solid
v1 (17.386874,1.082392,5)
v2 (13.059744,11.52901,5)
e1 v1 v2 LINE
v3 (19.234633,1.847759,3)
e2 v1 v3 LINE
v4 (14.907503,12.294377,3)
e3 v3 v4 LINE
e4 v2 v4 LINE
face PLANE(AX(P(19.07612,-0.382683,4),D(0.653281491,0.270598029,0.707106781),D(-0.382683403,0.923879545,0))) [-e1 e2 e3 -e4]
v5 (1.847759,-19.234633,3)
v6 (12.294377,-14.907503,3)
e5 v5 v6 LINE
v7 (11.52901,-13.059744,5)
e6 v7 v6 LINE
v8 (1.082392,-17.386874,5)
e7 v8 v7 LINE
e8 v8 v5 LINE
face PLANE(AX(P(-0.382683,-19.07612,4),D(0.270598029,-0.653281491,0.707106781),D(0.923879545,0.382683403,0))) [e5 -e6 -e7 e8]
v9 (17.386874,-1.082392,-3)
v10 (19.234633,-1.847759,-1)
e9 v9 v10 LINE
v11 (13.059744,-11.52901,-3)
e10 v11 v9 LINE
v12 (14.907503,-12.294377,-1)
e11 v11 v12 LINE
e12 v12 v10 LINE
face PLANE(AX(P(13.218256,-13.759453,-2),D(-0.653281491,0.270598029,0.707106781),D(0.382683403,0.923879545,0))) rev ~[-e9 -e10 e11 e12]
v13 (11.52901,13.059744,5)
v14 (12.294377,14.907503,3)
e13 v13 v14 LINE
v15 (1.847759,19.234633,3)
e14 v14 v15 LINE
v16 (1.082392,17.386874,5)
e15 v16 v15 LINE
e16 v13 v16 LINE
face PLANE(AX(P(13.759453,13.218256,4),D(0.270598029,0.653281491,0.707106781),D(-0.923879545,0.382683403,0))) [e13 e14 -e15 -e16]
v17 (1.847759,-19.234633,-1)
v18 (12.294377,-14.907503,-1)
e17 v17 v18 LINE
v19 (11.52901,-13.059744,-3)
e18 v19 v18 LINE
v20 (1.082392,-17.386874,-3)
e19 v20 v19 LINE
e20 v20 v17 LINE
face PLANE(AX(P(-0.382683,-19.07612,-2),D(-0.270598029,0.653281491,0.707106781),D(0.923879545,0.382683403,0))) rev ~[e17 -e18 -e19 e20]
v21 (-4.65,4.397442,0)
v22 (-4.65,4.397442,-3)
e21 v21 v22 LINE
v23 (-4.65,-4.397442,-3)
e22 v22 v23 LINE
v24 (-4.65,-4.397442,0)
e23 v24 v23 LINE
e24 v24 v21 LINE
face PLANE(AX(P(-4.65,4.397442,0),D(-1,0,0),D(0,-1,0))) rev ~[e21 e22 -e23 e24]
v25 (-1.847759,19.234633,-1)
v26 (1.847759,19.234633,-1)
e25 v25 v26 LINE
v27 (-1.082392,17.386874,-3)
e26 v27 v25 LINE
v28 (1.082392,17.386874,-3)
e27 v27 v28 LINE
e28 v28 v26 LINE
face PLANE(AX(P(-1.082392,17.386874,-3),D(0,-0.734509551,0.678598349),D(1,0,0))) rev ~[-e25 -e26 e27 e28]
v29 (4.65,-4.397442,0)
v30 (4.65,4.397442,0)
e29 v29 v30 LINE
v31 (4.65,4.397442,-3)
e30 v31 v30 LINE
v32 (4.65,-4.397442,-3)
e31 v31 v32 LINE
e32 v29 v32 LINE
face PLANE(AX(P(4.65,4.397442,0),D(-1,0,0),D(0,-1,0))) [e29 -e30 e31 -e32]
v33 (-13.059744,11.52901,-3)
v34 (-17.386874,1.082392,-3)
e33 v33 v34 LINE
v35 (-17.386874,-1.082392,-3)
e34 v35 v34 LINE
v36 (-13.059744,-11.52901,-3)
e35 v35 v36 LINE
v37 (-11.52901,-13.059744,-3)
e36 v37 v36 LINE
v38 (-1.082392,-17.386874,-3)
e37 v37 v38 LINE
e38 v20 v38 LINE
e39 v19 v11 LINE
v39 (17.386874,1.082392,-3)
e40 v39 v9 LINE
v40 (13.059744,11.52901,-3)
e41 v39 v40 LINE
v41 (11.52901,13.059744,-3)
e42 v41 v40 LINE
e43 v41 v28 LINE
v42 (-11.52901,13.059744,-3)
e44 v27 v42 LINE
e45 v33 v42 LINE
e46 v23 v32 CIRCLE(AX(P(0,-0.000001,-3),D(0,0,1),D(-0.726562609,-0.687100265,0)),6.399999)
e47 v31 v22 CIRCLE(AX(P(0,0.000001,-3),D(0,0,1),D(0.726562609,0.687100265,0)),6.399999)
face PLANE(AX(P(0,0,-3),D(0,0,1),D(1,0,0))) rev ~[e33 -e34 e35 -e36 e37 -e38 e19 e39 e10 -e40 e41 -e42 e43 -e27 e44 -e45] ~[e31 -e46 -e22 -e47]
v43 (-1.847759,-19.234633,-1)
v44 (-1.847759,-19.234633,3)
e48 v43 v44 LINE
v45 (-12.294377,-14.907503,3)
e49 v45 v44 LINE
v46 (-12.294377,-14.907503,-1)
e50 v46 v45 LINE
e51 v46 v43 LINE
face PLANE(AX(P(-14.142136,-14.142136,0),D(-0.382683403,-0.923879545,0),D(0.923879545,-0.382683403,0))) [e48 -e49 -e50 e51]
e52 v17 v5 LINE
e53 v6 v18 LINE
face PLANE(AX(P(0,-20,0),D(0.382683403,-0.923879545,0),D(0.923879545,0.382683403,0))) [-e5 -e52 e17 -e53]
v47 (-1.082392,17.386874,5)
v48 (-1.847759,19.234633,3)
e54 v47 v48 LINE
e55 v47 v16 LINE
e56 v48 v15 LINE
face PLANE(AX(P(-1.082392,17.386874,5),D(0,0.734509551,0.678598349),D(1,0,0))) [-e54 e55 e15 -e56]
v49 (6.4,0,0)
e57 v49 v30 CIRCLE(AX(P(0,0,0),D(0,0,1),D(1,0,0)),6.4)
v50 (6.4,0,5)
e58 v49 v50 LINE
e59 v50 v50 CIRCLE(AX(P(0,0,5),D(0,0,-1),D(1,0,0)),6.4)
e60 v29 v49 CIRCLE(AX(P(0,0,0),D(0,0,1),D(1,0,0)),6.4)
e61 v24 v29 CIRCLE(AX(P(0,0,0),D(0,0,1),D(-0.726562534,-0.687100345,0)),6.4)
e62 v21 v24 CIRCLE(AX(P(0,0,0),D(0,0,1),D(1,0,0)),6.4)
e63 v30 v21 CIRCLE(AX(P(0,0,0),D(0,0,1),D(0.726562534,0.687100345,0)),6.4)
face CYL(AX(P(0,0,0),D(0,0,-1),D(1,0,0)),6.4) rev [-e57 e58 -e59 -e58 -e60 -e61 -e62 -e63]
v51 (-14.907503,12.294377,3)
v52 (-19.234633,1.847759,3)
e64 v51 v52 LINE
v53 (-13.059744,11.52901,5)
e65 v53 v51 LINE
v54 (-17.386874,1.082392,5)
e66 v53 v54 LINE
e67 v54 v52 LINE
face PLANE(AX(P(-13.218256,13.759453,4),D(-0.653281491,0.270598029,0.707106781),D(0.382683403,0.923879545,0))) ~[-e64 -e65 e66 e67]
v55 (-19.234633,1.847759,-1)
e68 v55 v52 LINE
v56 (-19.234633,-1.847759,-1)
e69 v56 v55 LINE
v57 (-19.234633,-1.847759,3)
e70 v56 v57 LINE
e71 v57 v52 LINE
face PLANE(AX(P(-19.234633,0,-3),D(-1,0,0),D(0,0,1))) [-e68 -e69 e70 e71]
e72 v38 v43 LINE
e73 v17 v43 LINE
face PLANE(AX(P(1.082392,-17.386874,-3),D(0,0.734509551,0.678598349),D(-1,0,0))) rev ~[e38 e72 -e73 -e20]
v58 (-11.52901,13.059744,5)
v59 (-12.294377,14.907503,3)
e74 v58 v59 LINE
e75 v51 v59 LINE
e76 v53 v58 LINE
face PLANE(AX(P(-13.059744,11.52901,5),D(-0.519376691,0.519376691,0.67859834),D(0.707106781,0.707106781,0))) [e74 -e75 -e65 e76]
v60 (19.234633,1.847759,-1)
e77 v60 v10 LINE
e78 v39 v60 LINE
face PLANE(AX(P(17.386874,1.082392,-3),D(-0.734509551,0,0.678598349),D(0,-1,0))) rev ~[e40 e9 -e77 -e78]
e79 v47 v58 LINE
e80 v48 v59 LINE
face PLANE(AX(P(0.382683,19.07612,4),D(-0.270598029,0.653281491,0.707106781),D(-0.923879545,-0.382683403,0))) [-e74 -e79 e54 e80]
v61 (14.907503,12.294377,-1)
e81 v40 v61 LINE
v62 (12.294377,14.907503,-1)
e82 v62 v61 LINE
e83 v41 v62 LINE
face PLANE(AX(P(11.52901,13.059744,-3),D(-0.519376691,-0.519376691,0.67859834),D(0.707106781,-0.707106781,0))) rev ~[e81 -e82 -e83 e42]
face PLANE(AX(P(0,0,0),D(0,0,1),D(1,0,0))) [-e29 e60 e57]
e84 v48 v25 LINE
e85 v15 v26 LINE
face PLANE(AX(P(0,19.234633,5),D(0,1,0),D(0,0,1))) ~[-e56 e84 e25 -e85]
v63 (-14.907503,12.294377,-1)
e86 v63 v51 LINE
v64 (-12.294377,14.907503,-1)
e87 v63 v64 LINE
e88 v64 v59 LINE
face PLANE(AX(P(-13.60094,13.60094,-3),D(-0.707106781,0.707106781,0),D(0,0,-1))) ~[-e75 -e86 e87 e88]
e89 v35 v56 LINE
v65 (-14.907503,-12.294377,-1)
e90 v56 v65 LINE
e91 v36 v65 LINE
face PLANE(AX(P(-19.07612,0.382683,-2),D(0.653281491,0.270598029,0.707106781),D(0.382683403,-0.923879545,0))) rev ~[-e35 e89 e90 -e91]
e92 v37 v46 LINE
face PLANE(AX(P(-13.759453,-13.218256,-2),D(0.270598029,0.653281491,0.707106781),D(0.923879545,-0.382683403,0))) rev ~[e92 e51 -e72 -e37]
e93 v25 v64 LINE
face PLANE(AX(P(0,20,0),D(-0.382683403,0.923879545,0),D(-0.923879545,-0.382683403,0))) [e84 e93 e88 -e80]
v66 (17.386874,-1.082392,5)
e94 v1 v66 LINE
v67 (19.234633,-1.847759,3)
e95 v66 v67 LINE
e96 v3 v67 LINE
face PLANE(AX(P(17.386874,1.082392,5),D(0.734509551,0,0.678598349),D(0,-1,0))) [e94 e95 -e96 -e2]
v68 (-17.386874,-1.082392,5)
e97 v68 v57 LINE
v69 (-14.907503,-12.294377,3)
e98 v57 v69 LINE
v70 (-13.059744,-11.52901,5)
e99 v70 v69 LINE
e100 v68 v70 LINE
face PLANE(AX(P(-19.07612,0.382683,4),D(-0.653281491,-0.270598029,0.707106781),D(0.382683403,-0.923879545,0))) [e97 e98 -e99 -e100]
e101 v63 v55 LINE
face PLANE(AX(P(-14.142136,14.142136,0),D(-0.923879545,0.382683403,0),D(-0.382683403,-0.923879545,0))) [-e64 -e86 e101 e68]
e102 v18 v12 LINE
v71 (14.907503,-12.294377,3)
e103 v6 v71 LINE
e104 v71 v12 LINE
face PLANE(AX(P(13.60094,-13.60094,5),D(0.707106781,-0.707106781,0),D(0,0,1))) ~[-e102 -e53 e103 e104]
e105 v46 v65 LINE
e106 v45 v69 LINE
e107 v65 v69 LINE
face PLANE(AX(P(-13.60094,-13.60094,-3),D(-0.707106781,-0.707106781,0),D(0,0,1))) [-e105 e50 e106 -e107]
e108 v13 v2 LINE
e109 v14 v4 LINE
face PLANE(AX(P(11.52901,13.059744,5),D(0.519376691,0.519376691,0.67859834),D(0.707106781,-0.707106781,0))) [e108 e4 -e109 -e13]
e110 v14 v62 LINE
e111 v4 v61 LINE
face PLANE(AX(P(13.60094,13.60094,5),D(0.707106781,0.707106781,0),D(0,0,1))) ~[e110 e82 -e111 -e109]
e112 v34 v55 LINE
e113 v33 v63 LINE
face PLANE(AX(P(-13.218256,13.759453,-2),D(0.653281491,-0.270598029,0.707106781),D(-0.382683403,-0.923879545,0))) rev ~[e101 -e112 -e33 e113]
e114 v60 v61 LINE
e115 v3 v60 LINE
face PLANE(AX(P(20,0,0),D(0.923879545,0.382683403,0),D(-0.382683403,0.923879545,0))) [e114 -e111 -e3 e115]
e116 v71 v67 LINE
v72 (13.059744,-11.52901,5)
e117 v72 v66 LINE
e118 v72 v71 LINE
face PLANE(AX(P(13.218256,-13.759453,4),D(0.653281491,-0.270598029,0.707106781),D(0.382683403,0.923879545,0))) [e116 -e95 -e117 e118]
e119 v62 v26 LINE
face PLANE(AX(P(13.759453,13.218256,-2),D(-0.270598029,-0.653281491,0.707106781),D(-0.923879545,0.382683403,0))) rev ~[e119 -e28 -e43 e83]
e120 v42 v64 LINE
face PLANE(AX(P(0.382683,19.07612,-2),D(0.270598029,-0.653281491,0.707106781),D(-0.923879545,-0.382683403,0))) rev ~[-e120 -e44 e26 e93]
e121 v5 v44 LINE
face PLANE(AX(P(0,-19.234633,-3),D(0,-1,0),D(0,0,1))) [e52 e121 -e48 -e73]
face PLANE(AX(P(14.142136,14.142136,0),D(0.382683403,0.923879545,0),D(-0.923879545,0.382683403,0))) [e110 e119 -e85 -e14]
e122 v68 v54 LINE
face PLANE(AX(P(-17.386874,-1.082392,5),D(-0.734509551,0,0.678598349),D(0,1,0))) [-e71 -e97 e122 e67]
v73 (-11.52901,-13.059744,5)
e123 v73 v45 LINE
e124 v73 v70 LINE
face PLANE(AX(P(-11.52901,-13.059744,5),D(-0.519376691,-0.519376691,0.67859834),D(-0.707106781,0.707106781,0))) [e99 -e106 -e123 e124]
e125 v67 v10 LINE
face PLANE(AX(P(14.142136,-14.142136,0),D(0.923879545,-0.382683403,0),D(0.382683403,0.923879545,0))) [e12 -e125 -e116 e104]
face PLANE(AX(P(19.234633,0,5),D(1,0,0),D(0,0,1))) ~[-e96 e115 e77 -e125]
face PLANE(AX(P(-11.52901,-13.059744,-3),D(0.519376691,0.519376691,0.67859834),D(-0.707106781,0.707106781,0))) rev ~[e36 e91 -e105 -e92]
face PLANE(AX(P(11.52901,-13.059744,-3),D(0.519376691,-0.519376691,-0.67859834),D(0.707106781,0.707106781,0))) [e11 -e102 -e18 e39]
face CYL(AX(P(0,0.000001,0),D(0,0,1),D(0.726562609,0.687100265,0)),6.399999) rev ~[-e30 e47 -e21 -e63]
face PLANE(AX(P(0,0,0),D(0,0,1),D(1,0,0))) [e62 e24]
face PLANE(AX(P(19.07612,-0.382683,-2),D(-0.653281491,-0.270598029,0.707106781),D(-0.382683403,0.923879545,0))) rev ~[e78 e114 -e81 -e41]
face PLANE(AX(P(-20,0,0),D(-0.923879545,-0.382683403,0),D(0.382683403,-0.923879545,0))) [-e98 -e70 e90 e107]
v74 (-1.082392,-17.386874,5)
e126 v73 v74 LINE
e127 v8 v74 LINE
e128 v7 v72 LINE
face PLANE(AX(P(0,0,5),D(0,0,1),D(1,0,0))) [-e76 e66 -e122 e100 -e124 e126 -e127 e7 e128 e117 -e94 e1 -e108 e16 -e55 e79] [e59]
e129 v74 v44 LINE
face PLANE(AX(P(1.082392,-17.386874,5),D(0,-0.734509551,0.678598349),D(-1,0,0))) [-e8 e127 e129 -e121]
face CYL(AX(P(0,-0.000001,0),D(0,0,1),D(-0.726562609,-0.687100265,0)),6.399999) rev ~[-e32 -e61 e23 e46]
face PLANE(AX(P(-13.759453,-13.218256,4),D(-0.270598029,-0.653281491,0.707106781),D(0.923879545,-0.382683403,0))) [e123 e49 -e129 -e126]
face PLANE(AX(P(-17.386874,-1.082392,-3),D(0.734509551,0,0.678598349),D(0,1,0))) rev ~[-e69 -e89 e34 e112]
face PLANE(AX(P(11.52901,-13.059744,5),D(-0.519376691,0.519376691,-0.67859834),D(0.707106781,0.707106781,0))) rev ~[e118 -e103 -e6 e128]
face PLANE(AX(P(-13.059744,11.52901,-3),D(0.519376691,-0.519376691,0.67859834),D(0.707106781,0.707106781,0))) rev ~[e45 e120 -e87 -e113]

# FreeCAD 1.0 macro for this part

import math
import FreeCAD as App
import Part
import Sketcher
Q = App.Units.Quantity


def edges_at(feature, points):
    """Names of the edges that pass closest to the given points."""
    edges = feature.Shape.Edges
    near = lambda p: min(range(len(edges)), key=lambda i: edges[i].distToShape(Part.Vertex(*p))[0])
    return sorted({f"Edge{near(p) + 1}" for p in points})

doc = App.newDocument("Part")
params = doc.addObject("Spreadsheet::Sheet", "Params")
for row, (alias, value) in enumerate([
    ("sketch1_radius", "6.399999 mm"),
    ("pad1_length", "5 mm"),
    ("pad1_length2", "3 mm"),
    ("sketch2_diameter", "12.8 mm"),
    ("chamfer_size", "2 mm"),
], start=1):
    params.set(f"A{row}", alias)
    params.set(f"B{row}", "=" + value)
    params.setAlias(f"B{row}", alias)

body = doc.addObject("PartDesign::Body", "Body")

# Sketch on XY plane
sketch1 = doc.addObject("Sketcher::SketchObject", "Sketch")
body.addObject(sketch1)
sketch1.AttachmentSupport = (doc.XY_Plane, [""])
sketch1.MapMode = "FlatFace"
sketch1.addGeometry([
    Part.LineSegment(App.Vector(0, 20, 0), App.Vector(-14.142136, 14.142136, 0)),  # 0
    Part.LineSegment(App.Vector(-14.142136, 14.142136, 0), App.Vector(-20, 0, 0)),  # 1
    Part.LineSegment(App.Vector(-20, 0, 0), App.Vector(-14.142136, -14.142136, 0)),  # 2
    Part.LineSegment(App.Vector(-14.142136, -14.142136, 0), App.Vector(0, -20, 0)),  # 3
    Part.LineSegment(App.Vector(0, -20, 0), App.Vector(14.142136, -14.142136, 0)),  # 4
    Part.LineSegment(App.Vector(14.142136, -14.142136, 0), App.Vector(20, 0, 0)),  # 5
    Part.LineSegment(App.Vector(20, 0, 0), App.Vector(14.142136, 14.142136, 0)),  # 6
    Part.LineSegment(App.Vector(14.142136, 14.142136, 0), App.Vector(0, 20, 0)),  # 7
    Part.ArcOfCircle(Part.Circle(App.Vector(0, 0.000001, 0), App.Vector(0, 0, 1), 6.399999), math.radians(43.401006), math.radians(136.598994)),  # 8
    Part.LineSegment(App.Vector(4.65, 4.397442, 0), App.Vector(4.65, -4.397442, 0)),  # 9
    Part.ArcOfCircle(Part.Circle(App.Vector(0, -0.000001, 0), App.Vector(0, 0, 1), 6.399999), math.radians(-136.598994), math.radians(-43.401006)),  # 10
    Part.LineSegment(App.Vector(-4.65, -4.397442, 0), App.Vector(-4.65, 4.397442, 0)),  # 11
], False)
sketch1.addConstraint([
    Sketcher.Constraint("Coincident", 0, 2, 1, 1),
    Sketcher.Constraint("Coincident", 1, 2, 2, 1),
    Sketcher.Constraint("Coincident", 2, 2, 3, 1),
    Sketcher.Constraint("Coincident", 3, 2, 4, 1),
    Sketcher.Constraint("Coincident", 4, 2, 5, 1),
    Sketcher.Constraint("Coincident", 5, 2, 6, 1),
    Sketcher.Constraint("Coincident", 6, 2, 7, 1),
    Sketcher.Constraint("Coincident", 7, 2, 0, 1),
    Sketcher.Constraint("Coincident", 8, 1, 9, 1),
    Sketcher.Constraint("Coincident", 9, 2, 10, 2),
    Sketcher.Constraint("Coincident", 10, 1, 11, 1),
    Sketcher.Constraint("Coincident", 11, 2, 8, 2),
    Sketcher.Constraint("Vertical", 9),
    Sketcher.Constraint("Vertical", 11),
    Sketcher.Constraint("Coincident", 8, 3, -1, 1),
    Sketcher.Constraint("Coincident", 10, 3, -1, 1),
    Sketcher.Constraint("Equal", 8, 10),
    Sketcher.Constraint("Symmetric", 0, 2, 4, 2, -1, 1),
    Sketcher.Constraint("Symmetric", 1, 2, 5, 2, -1, 1),
    Sketcher.Constraint("Symmetric", 2, 2, 6, 2, -1, 1),
    Sketcher.Constraint("Symmetric", 3, 2, 7, 2, -1, 1),
    Sketcher.Constraint("Symmetric", 2, 2, 4, 2, -2),
    Sketcher.Constraint("PointOnObject", 1, 2, -1),
    Sketcher.Constraint("PointOnObject", 3, 2, -2),
    Sketcher.Constraint("Perpendicular", 0, 2),
    Sketcher.Constraint("Horizontal", 9, 2, 10, 1),
    Sketcher.Constraint("Equal", 0, 1),
    Sketcher.Constraint("Radius", 8, 6.399999),
    Sketcher.Constraint("DistanceX", 1, 2, -1, 1, 20.0),
    Sketcher.Constraint("Angle", 0, Q("-157.500002 deg")),
    Sketcher.Constraint("DistanceX", 10, 1, 9, 2, 9.3),
])
sketch1.setExpression("Constraints[27]", "Params.sketch1_radius")
pad1 = doc.addObject("PartDesign::Pad", "Pad")
body.addObject(pad1)
pad1.Profile = sketch1
pad1.Type = "TwoLengths"
pad1.setExpression("Length", "Params.pad1_length")
pad1.setExpression("Length2", "Params.pad1_length2")

# Sketch on XY plane
sketch2 = doc.addObject("Sketcher::SketchObject", "Sketch001")
body.addObject(sketch2)
sketch2.AttachmentSupport = (doc.XY_Plane, [""])
sketch2.MapMode = "FlatFace"
sketch2.addGeometry(Part.Circle(App.Vector(0, 0, 0), App.Vector(0, 0, 1), 6.4), False)
sketch2.addConstraint([
    Sketcher.Constraint("Coincident", 0, 3, -1, 1),
    Sketcher.Constraint("Diameter", 0, 12.8),
])
sketch2.setExpression("Constraints[1]", "Params.sketch2_diameter")
pocket1 = doc.addObject("PartDesign::Pocket", "Pocket")
body.addObject(pocket1)
pocket1.Profile = sketch2
pocket1.Type = "ThroughAll"
pocket1.Reversed = True
doc.recompute()

chamfer = doc.addObject("PartDesign::Chamfer", "Chamfer")
body.addObject(chamfer)
chamfer.Base = (pocket1, edges_at(pocket1, [
    (0, -20, 1),
    (14.142, -14.142, 1),
    (7.071, -17.071, -3),
    (7.071, -17.071, 5),
    (-14.142, -14.142, 1),
    (-7.071, -17.071, -3),
    (-7.071, -17.071, 5),
    (-20, 0, 1),
    (-17.071, -7.071, -3),
    (-17.071, -7.071, 5),
    (-14.142, 14.142, 1),
    (-17.071, 7.071, -3),
    (-17.071, 7.071, 5),
    (0, 20, 1),
    (-7.071, 17.071, -3),
    (-7.071, 17.071, 5),
    (14.142, 14.142, 1),
    (7.071, 17.071, -3),
    (7.071, 17.071, 5),
    (20, 0, 1),
    (17.071, 7.071, -3),
    (17.071, 7.071, 5),
    (17.071, -7.071, -3),
    (17.071, -7.071, 5),
]))
chamfer.setExpression("Size", "Params.chamfer_size")

doc.recompute()
